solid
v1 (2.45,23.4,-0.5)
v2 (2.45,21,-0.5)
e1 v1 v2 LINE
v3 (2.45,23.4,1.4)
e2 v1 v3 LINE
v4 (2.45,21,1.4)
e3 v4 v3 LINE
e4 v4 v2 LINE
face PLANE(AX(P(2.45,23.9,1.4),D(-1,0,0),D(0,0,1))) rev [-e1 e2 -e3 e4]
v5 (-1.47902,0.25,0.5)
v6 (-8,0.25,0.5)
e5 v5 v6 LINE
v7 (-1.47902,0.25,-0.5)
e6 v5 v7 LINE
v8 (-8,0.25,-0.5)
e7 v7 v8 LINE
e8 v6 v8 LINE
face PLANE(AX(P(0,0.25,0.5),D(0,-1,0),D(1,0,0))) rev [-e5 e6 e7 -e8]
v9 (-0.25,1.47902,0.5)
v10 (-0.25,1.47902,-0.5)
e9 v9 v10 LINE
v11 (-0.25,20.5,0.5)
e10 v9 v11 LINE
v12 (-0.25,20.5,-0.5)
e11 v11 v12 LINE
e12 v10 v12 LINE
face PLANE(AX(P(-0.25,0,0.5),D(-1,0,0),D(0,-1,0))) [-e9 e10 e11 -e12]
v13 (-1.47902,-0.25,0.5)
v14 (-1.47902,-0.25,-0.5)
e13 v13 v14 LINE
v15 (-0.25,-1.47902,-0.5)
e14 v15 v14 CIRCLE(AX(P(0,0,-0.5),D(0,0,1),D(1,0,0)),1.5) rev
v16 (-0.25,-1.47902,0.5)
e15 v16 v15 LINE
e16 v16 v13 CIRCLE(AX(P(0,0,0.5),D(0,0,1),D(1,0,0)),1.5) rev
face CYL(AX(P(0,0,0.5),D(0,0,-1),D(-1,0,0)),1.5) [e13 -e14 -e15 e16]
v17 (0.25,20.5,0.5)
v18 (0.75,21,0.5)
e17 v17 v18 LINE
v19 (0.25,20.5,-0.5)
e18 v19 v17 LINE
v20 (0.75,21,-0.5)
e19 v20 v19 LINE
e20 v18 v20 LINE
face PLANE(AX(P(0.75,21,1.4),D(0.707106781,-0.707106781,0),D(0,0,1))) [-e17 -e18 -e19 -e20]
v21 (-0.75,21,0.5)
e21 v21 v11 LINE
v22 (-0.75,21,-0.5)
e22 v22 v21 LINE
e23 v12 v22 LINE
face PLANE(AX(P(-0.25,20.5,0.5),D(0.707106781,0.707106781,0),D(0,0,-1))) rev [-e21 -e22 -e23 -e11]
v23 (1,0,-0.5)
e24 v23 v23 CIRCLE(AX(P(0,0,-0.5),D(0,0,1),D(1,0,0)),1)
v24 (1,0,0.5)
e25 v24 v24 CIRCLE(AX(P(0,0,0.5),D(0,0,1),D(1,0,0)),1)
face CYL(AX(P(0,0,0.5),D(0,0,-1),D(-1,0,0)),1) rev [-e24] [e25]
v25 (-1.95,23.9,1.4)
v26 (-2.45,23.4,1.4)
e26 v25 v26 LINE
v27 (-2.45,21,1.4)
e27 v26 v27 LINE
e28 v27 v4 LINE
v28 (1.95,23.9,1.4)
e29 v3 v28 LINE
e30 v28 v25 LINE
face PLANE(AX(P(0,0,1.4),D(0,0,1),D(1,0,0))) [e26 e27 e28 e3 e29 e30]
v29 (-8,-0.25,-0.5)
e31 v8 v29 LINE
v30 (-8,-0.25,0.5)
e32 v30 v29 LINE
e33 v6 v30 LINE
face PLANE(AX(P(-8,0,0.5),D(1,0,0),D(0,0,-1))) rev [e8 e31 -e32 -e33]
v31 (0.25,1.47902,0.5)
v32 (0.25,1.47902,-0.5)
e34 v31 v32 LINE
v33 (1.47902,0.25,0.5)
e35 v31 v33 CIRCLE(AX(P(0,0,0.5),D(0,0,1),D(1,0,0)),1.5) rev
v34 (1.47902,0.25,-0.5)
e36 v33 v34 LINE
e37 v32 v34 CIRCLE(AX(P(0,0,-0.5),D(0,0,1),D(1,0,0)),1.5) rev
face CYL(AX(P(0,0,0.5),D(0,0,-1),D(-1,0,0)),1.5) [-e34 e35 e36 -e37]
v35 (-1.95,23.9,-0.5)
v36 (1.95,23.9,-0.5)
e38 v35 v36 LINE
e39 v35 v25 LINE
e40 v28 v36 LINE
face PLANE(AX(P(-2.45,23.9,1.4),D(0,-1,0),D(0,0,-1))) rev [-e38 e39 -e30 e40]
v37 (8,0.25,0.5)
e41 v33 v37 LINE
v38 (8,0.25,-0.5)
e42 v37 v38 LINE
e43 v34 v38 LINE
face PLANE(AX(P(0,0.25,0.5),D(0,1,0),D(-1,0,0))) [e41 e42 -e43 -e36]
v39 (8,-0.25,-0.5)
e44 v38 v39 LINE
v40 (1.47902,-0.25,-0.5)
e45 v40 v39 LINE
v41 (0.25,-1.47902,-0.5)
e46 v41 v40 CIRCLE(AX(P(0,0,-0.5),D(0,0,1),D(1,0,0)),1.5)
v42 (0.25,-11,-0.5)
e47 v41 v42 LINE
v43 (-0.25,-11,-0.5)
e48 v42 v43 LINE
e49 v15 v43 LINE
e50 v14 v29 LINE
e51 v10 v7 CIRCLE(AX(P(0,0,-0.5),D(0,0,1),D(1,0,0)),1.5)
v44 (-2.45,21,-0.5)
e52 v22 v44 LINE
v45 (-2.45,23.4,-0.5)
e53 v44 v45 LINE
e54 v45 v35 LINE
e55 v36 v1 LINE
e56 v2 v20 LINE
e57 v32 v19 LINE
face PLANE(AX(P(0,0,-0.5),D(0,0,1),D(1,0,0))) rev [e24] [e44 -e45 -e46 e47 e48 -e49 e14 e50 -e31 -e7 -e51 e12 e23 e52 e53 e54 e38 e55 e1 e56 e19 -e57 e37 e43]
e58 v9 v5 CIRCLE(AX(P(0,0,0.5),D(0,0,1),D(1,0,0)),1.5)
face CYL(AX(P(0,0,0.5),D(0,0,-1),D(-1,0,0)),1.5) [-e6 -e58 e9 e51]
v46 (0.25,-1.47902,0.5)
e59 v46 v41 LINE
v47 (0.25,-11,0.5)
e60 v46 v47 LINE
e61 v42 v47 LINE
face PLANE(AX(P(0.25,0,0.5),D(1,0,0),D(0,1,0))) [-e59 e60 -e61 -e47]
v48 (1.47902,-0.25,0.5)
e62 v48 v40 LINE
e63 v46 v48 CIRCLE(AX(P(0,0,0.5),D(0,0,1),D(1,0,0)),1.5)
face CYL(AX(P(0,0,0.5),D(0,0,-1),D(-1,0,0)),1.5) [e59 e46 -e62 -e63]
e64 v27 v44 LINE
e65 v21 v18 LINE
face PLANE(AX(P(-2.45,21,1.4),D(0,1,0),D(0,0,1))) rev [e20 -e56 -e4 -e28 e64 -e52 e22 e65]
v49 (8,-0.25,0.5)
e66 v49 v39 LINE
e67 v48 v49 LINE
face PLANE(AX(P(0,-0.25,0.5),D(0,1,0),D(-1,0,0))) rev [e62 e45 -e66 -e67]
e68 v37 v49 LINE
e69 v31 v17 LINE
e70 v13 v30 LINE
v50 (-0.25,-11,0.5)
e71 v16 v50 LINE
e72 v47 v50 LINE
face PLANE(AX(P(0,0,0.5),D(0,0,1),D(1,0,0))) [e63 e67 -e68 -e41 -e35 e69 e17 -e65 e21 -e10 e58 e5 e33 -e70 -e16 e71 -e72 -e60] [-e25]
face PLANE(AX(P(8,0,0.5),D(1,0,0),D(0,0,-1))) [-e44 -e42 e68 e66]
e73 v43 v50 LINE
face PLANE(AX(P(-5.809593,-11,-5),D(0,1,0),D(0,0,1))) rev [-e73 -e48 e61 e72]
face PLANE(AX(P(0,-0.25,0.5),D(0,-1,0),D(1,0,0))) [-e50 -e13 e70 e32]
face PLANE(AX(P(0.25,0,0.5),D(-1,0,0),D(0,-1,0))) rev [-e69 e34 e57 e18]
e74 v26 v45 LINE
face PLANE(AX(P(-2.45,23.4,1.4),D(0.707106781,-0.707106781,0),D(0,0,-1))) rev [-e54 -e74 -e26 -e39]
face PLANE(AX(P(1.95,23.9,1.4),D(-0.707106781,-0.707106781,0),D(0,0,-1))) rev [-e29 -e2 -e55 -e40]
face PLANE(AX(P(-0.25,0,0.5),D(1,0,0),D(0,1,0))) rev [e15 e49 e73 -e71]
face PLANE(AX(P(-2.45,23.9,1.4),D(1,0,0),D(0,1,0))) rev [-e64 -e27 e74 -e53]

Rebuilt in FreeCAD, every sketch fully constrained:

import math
import FreeCAD as App
import Part
import Sketcher

V = App.Vector
Q = App.Units.Quantity


def edges_at(feature, points):
    """Names of the edges that pass closest to the given points."""
    edges = feature.Shape.Edges
    near = lambda p: min(range(len(edges)), key=lambda i: edges[i].distToShape(Part.Vertex(*p))[0])
    return sorted({f"Edge{near(p) + 1}" for p in points})


def add_polygon(sketch, points):
    """Adds a closed chain of lines whose ends are joined by coincident constraints."""
    first, n = sketch.GeometryCount, len(points)
    for a, b in zip(points, points[1:] + points[:1]):
        sketch.addGeometry(Part.LineSegment(App.Vector(*a, 0), App.Vector(*b, 0)), False)
    for i in range(n):
        sketch.addConstraint(Sketcher.Constraint("Coincident", first + i, 2, first + (i + 1) % n, 1))

doc = App.newDocument("Part")
params = doc.addObject("Spreadsheet::Sheet", "Params")
for row, (alias, value) in enumerate([
    ("sketch1_diameter", "2 mm"),
    ("sketch1_radius", "1.5 mm"),
    ("sketch1_width", "0.5 mm"),
    ("pad1_length", "1 mm"),
    ("sketch2_width", "4.9 mm"),
    ("sketch2_height", "2.9 mm"),
    ("pad2_length", "1.4 mm"),
    ("sketch3_width", "4.9 mm"),
    ("sketch3_height", "2.9 mm"),
    ("pad3_length", "0.5 mm"),
    ("chamfer_size", "0.5 mm"),
    ("chamfer2_size", "0.5 mm"),
    ("sketch4_height", "20 mm"),
    ("pocket1_length", "10 mm"),
], start=1):
    params.set(f"A{row}", alias)
    params.set(f"B{row}", "=" + value)
    params.setAlias(f"B{row}", alias)

body = doc.addObject("PartDesign::Body", "Body")

# Sketch on XY plane
sketch1 = doc.addObject("Sketcher::SketchObject", "Sketch")
body.addObject(sketch1)
sketch1.AttachmentSupport = (doc.XY_Plane, [""])
sketch1.MapMode = "FlatFace"
sketch1.addGeometry(Part.ArcOfCircle(Part.Circle(V(0, 0, 0), V(0, 0, 1), 1.5), math.radians(-170), math.radians(-100)), False)
sketch1.addGeometry(Part.LineSegment(V(-0.2, -1.5, 0), V(-0.2, -21, 0)), False)
sketch1.addGeometry(Part.LineSegment(V(-0.2, -21, 0), V(0.2, -21, 0)), False)
sketch1.addGeometry(Part.LineSegment(V(0.2, -21, 0), V(0.2, -1.5, 0)), False)
sketch1.addGeometry(Part.ArcOfCircle(Part.Circle(V(0, 0, 0), V(0, 0, 1), 1.5), math.radians(-80), math.radians(-10)), False)
sketch1.addGeometry(Part.LineSegment(V(1.5, -0.2, 0), V(8, -0.2, 0)), False)
sketch1.addGeometry(Part.LineSegment(V(8, -0.2, 0), V(8, 0.2, 0)), False)
sketch1.addGeometry(Part.LineSegment(V(8, 0.2, 0), V(1.5, 0.2, 0)), False)
sketch1.addGeometry(Part.ArcOfCircle(Part.Circle(V(0, 0, 0), V(0, 0, 1), 1.5), math.radians(10), math.radians(80)), False)
sketch1.addGeometry(Part.LineSegment(V(0.2, 1.5, 0), V(0.2, 21, 0)), False)
sketch1.addGeometry(Part.LineSegment(V(0.2, 21, 0), V(-0.2, 21, 0)), False)
sketch1.addGeometry(Part.LineSegment(V(-0.2, 21, 0), V(-0.2, 1.5, 0)), False)
sketch1.addGeometry(Part.ArcOfCircle(Part.Circle(V(0, 0, 0), V(0, 0, 1), 1.5), math.radians(100), math.radians(170)), False)
sketch1.addGeometry(Part.LineSegment(V(-1.5, 0.2, 0), V(-8, 0.2, 0)), False)
sketch1.addGeometry(Part.LineSegment(V(-8, 0.2, 0), V(-8, -0.2, 0)), False)
sketch1.addGeometry(Part.LineSegment(V(-8, -0.2, 0), V(-1.5, -0.2, 0)), False)
sketch1.addGeometry(Part.Circle(V(0, 0, 0), V(0, 0, 1), 1), False)
sketch1.addConstraint(Sketcher.Constraint("Coincident", 0, 2, 1, 1))
sketch1.addConstraint(Sketcher.Constraint("Coincident", 1, 2, 2, 1))
sketch1.addConstraint(Sketcher.Constraint("Coincident", 2, 2, 3, 1))
sketch1.addConstraint(Sketcher.Constraint("Coincident", 3, 2, 4, 1))
sketch1.addConstraint(Sketcher.Constraint("Coincident", 4, 2, 5, 1))
sketch1.addConstraint(Sketcher.Constraint("Coincident", 5, 2, 6, 1))
sketch1.addConstraint(Sketcher.Constraint("Coincident", 6, 2, 7, 1))
sketch1.addConstraint(Sketcher.Constraint("Coincident", 7, 2, 8, 1))
sketch1.addConstraint(Sketcher.Constraint("Coincident", 8, 2, 9, 1))
sketch1.addConstraint(Sketcher.Constraint("Coincident", 9, 2, 10, 1))
sketch1.addConstraint(Sketcher.Constraint("Coincident", 10, 2, 11, 1))
sketch1.addConstraint(Sketcher.Constraint("Coincident", 11, 2, 12, 1))
sketch1.addConstraint(Sketcher.Constraint("Coincident", 12, 2, 13, 1))
sketch1.addConstraint(Sketcher.Constraint("Coincident", 13, 2, 14, 1))
sketch1.addConstraint(Sketcher.Constraint("Coincident", 14, 2, 15, 1))
sketch1.addConstraint(Sketcher.Constraint("Coincident", 15, 2, 0, 1))
sketch1.addConstraint(Sketcher.Constraint("Vertical", 1))
sketch1.addConstraint(Sketcher.Constraint("Horizontal", 2))
sketch1.addConstraint(Sketcher.Constraint("Vertical", 3))
sketch1.addConstraint(Sketcher.Constraint("Horizontal", 5))
sketch1.addConstraint(Sketcher.Constraint("Vertical", 6))
sketch1.addConstraint(Sketcher.Constraint("Horizontal", 7))
sketch1.addConstraint(Sketcher.Constraint("Vertical", 9))
sketch1.addConstraint(Sketcher.Constraint("Horizontal", 10))
sketch1.addConstraint(Sketcher.Constraint("Vertical", 11))
sketch1.addConstraint(Sketcher.Constraint("Horizontal", 13))
sketch1.addConstraint(Sketcher.Constraint("Vertical", 14))
sketch1.addConstraint(Sketcher.Constraint("Horizontal", 15))
sketch1.addConstraint(Sketcher.Constraint("Coincident", 0, 3, -1, 1))
sketch1.addConstraint(Sketcher.Constraint("Coincident", 4, 3, -1, 1))
sketch1.addConstraint(Sketcher.Constraint("Coincident", 8, 3, -1, 1))
sketch1.addConstraint(Sketcher.Constraint("Coincident", 12, 3, -1, 1))
sketch1.addConstraint(Sketcher.Constraint("Coincident", 16, 3, -1, 1))
sketch1.addConstraint(Sketcher.Constraint("Equal", 0, 4))
sketch1.addConstraint(Sketcher.Constraint("Equal", 4, 8))
sketch1.addConstraint(Sketcher.Constraint("Equal", 8, 12))
sketch1.addConstraint(Sketcher.Constraint("Symmetric", 1, 2, 9, 2, -1, 1))
sketch1.addConstraint(Sketcher.Constraint("Symmetric", 5, 2, 13, 2, -1, 1))
sketch1.addConstraint(Sketcher.Constraint("Horizontal", 0, 2, 3, 2))
sketch1.addConstraint(Sketcher.Constraint("Horizontal", 8, 2, 11, 2))
sketch1.addConstraint(Sketcher.Constraint("Horizontal", 7, 2, 12, 2))
sketch1.addConstraint(Sketcher.Constraint("Horizontal", 5, 2, 14, 2))
sketch1.addConstraint(Sketcher.Constraint("Equal", 10, 6))
sketch1.addConstraint(Sketcher.Constraint("Diameter", 16, Q("2 mm")))
sketch1.addConstraint(Sketcher.Constraint("Radius", 0, Q("1.5 mm")))
sketch1.addConstraint(Sketcher.Constraint("DistanceX", 2, 1, 2, 2, Q("0.5 mm")))
sketch1.addConstraint(Sketcher.Constraint("DistanceY", 1, 2, -1, 1, Q("21 mm")))
sketch1.addConstraint(Sketcher.Constraint("DistanceX", -1, 1, 5, 2, Q("8 mm")))
sketch1.setExpression("Constraints[43]", "Params.sketch1_diameter")
sketch1.setExpression("Constraints[44]", "Params.sketch1_radius")
sketch1.setExpression("Constraints[45]", "Params.sketch1_width")
pad1 = doc.addObject("PartDesign::Pad", "Pad")
body.addObject(pad1)
pad1.Profile = sketch1
pad1.setExpression("Length", "Params.pad1_length")
pad1.Midplane = True

# Sketch on XY plane
sketch2 = doc.addObject("Sketcher::SketchObject", "Sketch001")
body.addObject(sketch2)
sketch2.AttachmentSupport = (doc.XY_Plane, [""])
sketch2.MapMode = "FlatFace"
add_polygon(sketch2, [(-2.5, 23.9), (-2.5, 21), (2.5, 21), (2.5, 23.9)])  # lines 0-3
sketch2.addConstraint(Sketcher.Constraint("Vertical", 0))
sketch2.addConstraint(Sketcher.Constraint("Horizontal", 1))
sketch2.addConstraint(Sketcher.Constraint("Vertical", 2))
sketch2.addConstraint(Sketcher.Constraint("Horizontal", 3))
sketch2.addConstraint(Sketcher.Constraint("DistanceX", 1, 1, 1, 2, Q("4.9 mm")))
sketch2.addConstraint(Sketcher.Constraint("DistanceY", 0, 2, 0, 1, Q("2.9 mm")))
sketch2.addConstraint(Sketcher.Constraint("DistanceY", -1, 1, 0, 2, Q("21 mm")))
sketch2.addConstraint(Sketcher.Constraint("DistanceX", 0, 2, -1, 1, Q("2.45 mm")))
sketch2.setExpression("Constraints[8]", "Params.sketch2_width")
sketch2.setExpression("Constraints[9]", "Params.sketch2_height")
pad2 = doc.addObject("PartDesign::Pad", "Pad001")
body.addObject(pad2)
pad2.Profile = sketch2
pad2.setExpression("Length", "Params.pad2_length")

# Sketch on XY plane
sketch3 = doc.addObject("Sketcher::SketchObject", "Sketch002")
body.addObject(sketch3)
sketch3.AttachmentSupport = (doc.XY_Plane, [""])
sketch3.MapMode = "FlatFace"
add_polygon(sketch3, [(-2.5, 23.9), (-2.5, 21), (2.5, 21), (2.5, 23.9)])  # lines 0-3
sketch3.addConstraint(Sketcher.Constraint("Vertical", 0))
sketch3.addConstraint(Sketcher.Constraint("Horizontal", 1))
sketch3.addConstraint(Sketcher.Constraint("Vertical", 2))
sketch3.addConstraint(Sketcher.Constraint("Horizontal", 3))
sketch3.addConstraint(Sketcher.Constraint("DistanceX", 1, 1, 1, 2, Q("4.9 mm")))
sketch3.addConstraint(Sketcher.Constraint("DistanceY", 0, 2, 0, 1, Q("2.9 mm")))
sketch3.addConstraint(Sketcher.Constraint("DistanceY", -1, 1, 0, 2, Q("21 mm")))
sketch3.addConstraint(Sketcher.Constraint("DistanceX", 0, 2, -1, 1, Q("2.45 mm")))
sketch3.setExpression("Constraints[8]", "Params.sketch3_width")
sketch3.setExpression("Constraints[9]", "Params.sketch3_height")
pad3 = doc.addObject("PartDesign::Pad", "Pad002")
body.addObject(pad3)
pad3.Profile = sketch3
pad3.setExpression("Length", "Params.pad3_length")
pad3.Reversed = True
doc.recompute()

chamfer = doc.addObject("PartDesign::Chamfer", "Chamfer")
body.addObject(chamfer)
chamfer.Base = (pad3, edges_at(pad3, [(2.45, 23.9, 0.45), (-2.45, 23.9, 0.45)]))
chamfer.setExpression("Size", "Params.chamfer_size")
doc.recompute()

chamfer2 = doc.addObject("PartDesign::Chamfer", "Chamfer001")
body.addObject(chamfer2)
chamfer2.Base = (chamfer, edges_at(chamfer, [(-0.25, 21, 0), (0.25, 21, 0)]))
chamfer2.setExpression("Size", "Params.chamfer2_size")

# Sketch on XY plane
sketch4 = doc.addObject("Sketcher::SketchObject", "Sketch003")
body.addObject(sketch4)
sketch4.AttachmentSupport = (doc.XY_Plane, [""])
sketch4.MapMode = "FlatFace"
add_polygon(sketch4, [(-6, -11), (-6, -31), (6, -31), (6, -11)])  # lines 0-3
sketch4.addConstraint(Sketcher.Constraint("Vertical", 0))
sketch4.addConstraint(Sketcher.Constraint("Horizontal", 1))
sketch4.addConstraint(Sketcher.Constraint("Vertical", 2))
sketch4.addConstraint(Sketcher.Constraint("Horizontal", 3))
sketch4.addConstraint(Sketcher.Constraint("DistanceY", 0, 2, 0, 1, Q("20 mm")))
sketch4.addConstraint(Sketcher.Constraint("DistanceY", 0, 2, -1, 1, Q("31 mm")))
sketch4.addConstraint(Sketcher.Constraint("DistanceX", 1, 1, 1, 2, Q("11.619187 mm")))
sketch4.addConstraint(Sketcher.Constraint("DistanceX", 0, 2, -1, 1, Q("5.809593 mm")))
sketch4.setExpression("Constraints[8]", "Params.sketch4_height")
pocket1 = doc.addObject("PartDesign::Pocket", "Pocket")
body.addObject(pocket1)
pocket1.Profile = sketch4
pocket1.setExpression("Length", "Params.pocket1_length")
pocket1.Midplane = True

doc.recompute()
